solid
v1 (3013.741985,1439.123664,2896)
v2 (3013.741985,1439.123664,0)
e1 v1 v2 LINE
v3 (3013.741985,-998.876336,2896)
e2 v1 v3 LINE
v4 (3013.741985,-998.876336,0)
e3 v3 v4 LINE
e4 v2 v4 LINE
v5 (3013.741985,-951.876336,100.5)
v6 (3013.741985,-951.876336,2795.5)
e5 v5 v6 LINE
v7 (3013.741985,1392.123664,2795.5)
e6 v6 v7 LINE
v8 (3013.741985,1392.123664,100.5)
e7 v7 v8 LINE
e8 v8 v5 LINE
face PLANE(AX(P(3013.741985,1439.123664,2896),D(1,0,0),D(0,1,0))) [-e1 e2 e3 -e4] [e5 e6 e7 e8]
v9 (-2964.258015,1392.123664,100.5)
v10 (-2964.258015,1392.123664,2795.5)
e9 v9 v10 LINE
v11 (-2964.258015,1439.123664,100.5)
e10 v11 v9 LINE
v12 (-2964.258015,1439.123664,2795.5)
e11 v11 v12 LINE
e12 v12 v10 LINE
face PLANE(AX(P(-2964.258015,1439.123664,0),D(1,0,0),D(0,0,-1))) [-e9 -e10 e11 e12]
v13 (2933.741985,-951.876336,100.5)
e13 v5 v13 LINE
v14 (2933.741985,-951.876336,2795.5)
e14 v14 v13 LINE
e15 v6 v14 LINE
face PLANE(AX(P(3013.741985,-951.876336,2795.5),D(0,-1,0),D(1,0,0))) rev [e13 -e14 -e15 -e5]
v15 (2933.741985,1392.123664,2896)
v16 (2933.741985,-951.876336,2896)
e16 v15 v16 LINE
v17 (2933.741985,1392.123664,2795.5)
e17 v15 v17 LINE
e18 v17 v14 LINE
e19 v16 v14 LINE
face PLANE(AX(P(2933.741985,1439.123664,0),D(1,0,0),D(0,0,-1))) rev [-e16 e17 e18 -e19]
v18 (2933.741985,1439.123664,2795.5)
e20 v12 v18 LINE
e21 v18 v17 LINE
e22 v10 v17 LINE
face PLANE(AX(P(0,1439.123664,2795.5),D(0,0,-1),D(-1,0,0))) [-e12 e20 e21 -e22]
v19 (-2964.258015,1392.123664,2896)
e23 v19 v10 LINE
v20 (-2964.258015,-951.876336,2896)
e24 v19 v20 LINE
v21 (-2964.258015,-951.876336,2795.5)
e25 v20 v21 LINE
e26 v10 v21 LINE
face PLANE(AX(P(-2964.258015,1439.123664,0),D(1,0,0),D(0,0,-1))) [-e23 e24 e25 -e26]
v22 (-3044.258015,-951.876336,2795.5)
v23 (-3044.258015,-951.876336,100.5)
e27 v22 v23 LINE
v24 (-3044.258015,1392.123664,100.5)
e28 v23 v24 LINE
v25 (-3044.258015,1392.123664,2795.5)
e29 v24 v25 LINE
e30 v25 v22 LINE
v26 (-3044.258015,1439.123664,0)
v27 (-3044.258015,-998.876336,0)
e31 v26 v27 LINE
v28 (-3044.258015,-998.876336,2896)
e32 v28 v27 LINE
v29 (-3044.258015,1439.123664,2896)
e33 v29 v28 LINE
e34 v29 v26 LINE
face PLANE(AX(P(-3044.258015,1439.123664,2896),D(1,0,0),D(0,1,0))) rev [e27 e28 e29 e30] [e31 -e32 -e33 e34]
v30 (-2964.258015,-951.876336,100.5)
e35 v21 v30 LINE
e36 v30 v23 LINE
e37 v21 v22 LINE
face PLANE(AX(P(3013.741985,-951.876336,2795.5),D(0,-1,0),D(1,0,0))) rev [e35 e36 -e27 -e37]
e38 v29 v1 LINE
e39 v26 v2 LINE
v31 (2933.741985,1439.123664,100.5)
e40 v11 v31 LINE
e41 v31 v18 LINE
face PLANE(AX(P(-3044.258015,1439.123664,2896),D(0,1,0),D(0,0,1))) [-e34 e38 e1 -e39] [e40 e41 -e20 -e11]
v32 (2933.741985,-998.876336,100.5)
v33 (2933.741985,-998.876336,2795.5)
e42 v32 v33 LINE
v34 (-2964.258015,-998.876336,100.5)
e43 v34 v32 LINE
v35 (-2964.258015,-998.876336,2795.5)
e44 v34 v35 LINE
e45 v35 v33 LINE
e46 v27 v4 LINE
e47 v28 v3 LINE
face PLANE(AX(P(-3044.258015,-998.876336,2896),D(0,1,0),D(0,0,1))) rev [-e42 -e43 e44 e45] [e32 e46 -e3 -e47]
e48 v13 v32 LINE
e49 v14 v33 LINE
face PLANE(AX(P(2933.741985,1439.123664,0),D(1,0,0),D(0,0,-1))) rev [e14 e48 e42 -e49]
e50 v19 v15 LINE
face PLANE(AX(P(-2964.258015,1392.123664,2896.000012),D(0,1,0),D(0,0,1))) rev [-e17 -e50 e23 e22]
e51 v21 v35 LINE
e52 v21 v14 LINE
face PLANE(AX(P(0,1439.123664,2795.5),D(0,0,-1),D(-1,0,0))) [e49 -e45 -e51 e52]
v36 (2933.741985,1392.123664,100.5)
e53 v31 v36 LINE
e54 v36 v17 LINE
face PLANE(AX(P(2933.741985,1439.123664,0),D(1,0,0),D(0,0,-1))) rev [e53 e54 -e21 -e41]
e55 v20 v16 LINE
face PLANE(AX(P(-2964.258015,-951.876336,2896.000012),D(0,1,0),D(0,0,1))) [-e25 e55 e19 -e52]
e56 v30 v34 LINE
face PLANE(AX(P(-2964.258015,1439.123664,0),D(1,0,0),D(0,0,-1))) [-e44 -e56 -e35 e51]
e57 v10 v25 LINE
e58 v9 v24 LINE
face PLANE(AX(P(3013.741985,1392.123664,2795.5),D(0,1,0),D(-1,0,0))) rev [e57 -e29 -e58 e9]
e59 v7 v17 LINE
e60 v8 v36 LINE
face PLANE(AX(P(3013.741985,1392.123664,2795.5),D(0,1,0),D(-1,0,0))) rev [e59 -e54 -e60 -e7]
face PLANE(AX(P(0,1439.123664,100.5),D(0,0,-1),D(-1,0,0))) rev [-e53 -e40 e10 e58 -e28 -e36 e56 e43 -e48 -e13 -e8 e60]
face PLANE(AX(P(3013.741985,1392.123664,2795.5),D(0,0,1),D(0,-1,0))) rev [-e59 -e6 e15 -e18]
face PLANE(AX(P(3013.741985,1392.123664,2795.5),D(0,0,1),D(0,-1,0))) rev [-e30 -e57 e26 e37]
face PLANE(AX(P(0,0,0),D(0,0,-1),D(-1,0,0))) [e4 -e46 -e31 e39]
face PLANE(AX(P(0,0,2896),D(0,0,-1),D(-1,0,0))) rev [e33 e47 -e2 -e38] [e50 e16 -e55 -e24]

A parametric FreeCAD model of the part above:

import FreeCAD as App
import Part
import Sketcher
Q = App.Units.Quantity

doc = App.newDocument("Part")
body = doc.addObject("PartDesign::Body", "Body")

# Sketch on XY plane
sketch1 = doc.addObject("Sketcher::SketchObject", "Sketch")
body.addObject(sketch1)
sketch1.AttachmentSupport = (doc.XY_Plane, [""])
sketch1.MapMode = "FlatFace"
sketch1.addGeometry([
    Part.LineSegment(App.Vector(-3044, 1439, 0), App.Vector(-3044, -999, 0)),
    Part.LineSegment(App.Vector(-3044, -999, 0), App.Vector(3014, -999, 0)),
    Part.LineSegment(App.Vector(3014, -999, 0), App.Vector(3014, 1439, 0)),
    Part.LineSegment(App.Vector(3014, 1439, 0), App.Vector(-3044, 1439, 0)),
], False)
sketch1.addConstraint([
    Sketcher.Constraint("Coincident", 0, 2, 1, 1),
    Sketcher.Constraint("Coincident", 1, 2, 2, 1),
    Sketcher.Constraint("Coincident", 2, 2, 3, 1),
    Sketcher.Constraint("Coincident", 3, 2, 0, 1),
    Sketcher.Constraint("Vertical", 0),
    Sketcher.Constraint("Horizontal", 1),
    Sketcher.Constraint("Vertical", 2),
    Sketcher.Constraint("Horizontal", 3),
    Sketcher.Constraint("DistanceX", 1, 1, 1, 2, Q("6058 mm")),
    Sketcher.Constraint("DistanceY", 0, 2, 0, 1, Q("2438 mm")),
    Sketcher.Constraint("DistanceX", 0, 2, -1, 1, Q("3044.258015 mm")),
    Sketcher.Constraint("DistanceY", 0, 2, -1, 1, Q("998.876336 mm")),
])
pad1 = doc.addObject("PartDesign::Pad", "Pad")
body.addObject(pad1)
pad1.Profile = sketch1
pad1.Length = 2896

# Sketch on XZ plane
sketch2 = doc.addObject("Sketcher::SketchObject", "Sketch001")
body.addObject(sketch2)
sketch2.AttachmentSupport = (doc.XZ_Plane, [""])
sketch2.MapMode = "FlatFace"
sketch2.AttachmentOffset = App.Placement(App.Vector(0, 0, 998.876336), App.Rotation())
sketch2.addGeometry([
    Part.LineSegment(App.Vector(-2964, 2796, 0), App.Vector(-2964, 100, 0)),
    Part.LineSegment(App.Vector(-2964, 100, 0), App.Vector(2934, 100, 0)),
    Part.LineSegment(App.Vector(2934, 100, 0), App.Vector(2934, 2796, 0)),
    Part.LineSegment(App.Vector(2934, 2796, 0), App.Vector(-2964, 2796, 0)),
], False)
sketch2.addConstraint([
    Sketcher.Constraint("Coincident", 0, 2, 1, 1),
    Sketcher.Constraint("Coincident", 1, 2, 2, 1),
    Sketcher.Constraint("Coincident", 2, 2, 3, 1),
    Sketcher.Constraint("Coincident", 3, 2, 0, 1),
    Sketcher.Constraint("Vertical", 0),
    Sketcher.Constraint("Horizontal", 1),
    Sketcher.Constraint("Vertical", 2),
    Sketcher.Constraint("Horizontal", 3),
    Sketcher.Constraint("DistanceX", 1, 1, 1, 2, Q("5898 mm")),
    Sketcher.Constraint("DistanceY", 0, 2, 0, 1, Q("2695 mm")),
    Sketcher.Constraint("DistanceY", -1, 1, 0, 2, Q("100.5 mm")),
    Sketcher.Constraint("DistanceX", 0, 2, -1, 1, Q("2964.258015 mm")),
])
pocket1 = doc.addObject("PartDesign::Pocket", "Pocket")
body.addObject(pocket1)
pocket1.Profile = sketch2
pocket1.Type = "ThroughAll"

# Sketch on XY plane
sketch3 = doc.addObject("Sketcher::SketchObject", "Sketch002")
body.addObject(sketch3)
sketch3.AttachmentSupport = (doc.XY_Plane, [""])
sketch3.MapMode = "FlatFace"
sketch3.AttachmentOffset = App.Placement(App.Vector(0, 0, 2896), App.Rotation())
sketch3.addGeometry([
    Part.LineSegment(App.Vector(-2964, 1392, 0), App.Vector(-2964, -952, 0)),
    Part.LineSegment(App.Vector(-2964, -952, 0), App.Vector(2934, -952, 0)),
    Part.LineSegment(App.Vector(2934, -952, 0), App.Vector(2934, 1392, 0)),
    Part.LineSegment(App.Vector(2934, 1392, 0), App.Vector(-2964, 1392, 0)),
], False)
sketch3.addConstraint([
    Sketcher.Constraint("Coincident", 0, 2, 1, 1),
    Sketcher.Constraint("Coincident", 1, 2, 2, 1),
    Sketcher.Constraint("Coincident", 2, 2, 3, 1),
    Sketcher.Constraint("Coincident", 3, 2, 0, 1),
    Sketcher.Constraint("Vertical", 0),
    Sketcher.Constraint("Horizontal", 1),
    Sketcher.Constraint("Vertical", 2),
    Sketcher.Constraint("Horizontal", 3),
    Sketcher.Constraint("DistanceX", 1, 1, 1, 2, Q("5898 mm")),
    Sketcher.Constraint("DistanceY", 0, 2, 0, 1, Q("2344 mm")),
    Sketcher.Constraint("DistanceX", 0, 2, -1, 1, Q("2964.258015 mm")),
    Sketcher.Constraint("DistanceY", 0, 2, -1, 1, Q("951.876336 mm")),
])
pocket2 = doc.addObject("PartDesign::Pocket", "Pocket001")
body.addObject(pocket2)
pocket2.Profile = sketch3
pocket2.Type = "TwoLengths"
pocket2.Length = 4442.328606
pocket2.Length2 = 180
pocket2.Reversed = True

# Sketch on YZ plane
sketch4 = doc.addObject("Sketcher::SketchObject", "Sketch003")
body.addObject(sketch4)
sketch4.AttachmentSupport = (doc.YZ_Plane, [""])
sketch4.MapMode = "FlatFace"
sketch4.AttachmentOffset = App.Placement(App.Vector(0, 0, -3044.258015), App.Rotation())
sketch4.addGeometry([
    Part.LineSegment(App.Vector(1392, 100, 0), App.Vector(-952, 100, 0)),
    Part.LineSegment(App.Vector(-952, 100, 0), App.Vector(-952, 2796, 0)),
    Part.LineSegment(App.Vector(-952, 2796, 0), App.Vector(1392, 2796, 0)),
    Part.LineSegment(App.Vector(1392, 2796, 0), App.Vector(1392, 100, 0)),
], False)
sketch4.addConstraint([
    Sketcher.Constraint("Coincident", 0, 2, 1, 1),
    Sketcher.Constraint("Coincident", 1, 2, 2, 1),
    Sketcher.Constraint("Coincident", 2, 2, 3, 1),
    Sketcher.Constraint("Coincident", 3, 2, 0, 1),
    Sketcher.Constraint("Horizontal", 0),
    Sketcher.Constraint("Vertical", 1),
    Sketcher.Constraint("Horizontal", 2),
    Sketcher.Constraint("Vertical", 3),
    Sketcher.Constraint("DistanceX", 0, 2, 0, 1, Q("2344 mm")),
    Sketcher.Constraint("DistanceY", 1, 1, 1, 2, Q("2695 mm")),
    Sketcher.Constraint("DistanceY", -1, 1, 0, 2, Q("100.5 mm")),
    Sketcher.Constraint("DistanceX", 0, 2, -1, 1, Q("951.876336 mm")),
])
pocket3 = doc.addObject("PartDesign::Pocket", "Pocket002")
body.addObject(pocket3)
pocket3.Profile = sketch4
pocket3.Type = "ThroughAll"
pocket3.Midplane = True

doc.recompute()
